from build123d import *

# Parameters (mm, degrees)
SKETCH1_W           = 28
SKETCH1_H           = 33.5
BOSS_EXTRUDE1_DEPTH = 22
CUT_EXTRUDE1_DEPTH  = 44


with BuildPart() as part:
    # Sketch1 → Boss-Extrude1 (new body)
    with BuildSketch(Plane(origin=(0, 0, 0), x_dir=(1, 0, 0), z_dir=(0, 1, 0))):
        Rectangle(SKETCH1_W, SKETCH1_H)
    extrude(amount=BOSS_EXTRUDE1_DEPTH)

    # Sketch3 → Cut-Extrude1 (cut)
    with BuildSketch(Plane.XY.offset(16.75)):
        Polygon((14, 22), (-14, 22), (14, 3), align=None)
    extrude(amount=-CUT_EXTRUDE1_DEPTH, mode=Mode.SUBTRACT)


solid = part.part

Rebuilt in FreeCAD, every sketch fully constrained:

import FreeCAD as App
import Part
import Sketcher

V = App.Vector
Q = App.Units.Quantity

doc = App.newDocument("Part")
body = doc.addObject("PartDesign::Body", "Body")

sketch1 = body.newObject("Sketcher::SketchObject", "Sketch")
sketch1.AttachmentSupport = (doc.getObject("XZ_Plane"), [""])
sketch1.MapMode = "FlatFace"
sketch1.addGeometry([
    Part.LineSegment(V(-14, -16.75, 0), V(-14, 16.75, 0)),
    Part.LineSegment(V(-14, 16.75, 0), V(14, 16.75, 0)),
    Part.LineSegment(V(14, 16.75, 0), V(14, -16.75, 0)),
    Part.LineSegment(V(14, -16.75, 0), V(-14, -16.75, 0)),
], False)
sketch1.addConstraint([
    Sketcher.Constraint("Coincident", 0, 2, 1, 1),
    Sketcher.Constraint("Coincident", 1, 2, 2, 1),
    Sketcher.Constraint("Coincident", 2, 2, 3, 1),
    Sketcher.Constraint("Coincident", 3, 2, 0, 1),
    Sketcher.Constraint("Vertical", 0),
    Sketcher.Constraint("Horizontal", 1),
    Sketcher.Constraint("Vertical", 2),
    Sketcher.Constraint("Horizontal", 3),
    Sketcher.Constraint("Symmetric", 0, 2, 2, 2, -1, 1),
    Sketcher.Constraint("DistanceX", 1, 1, 1, 2, Q("28 mm")),
    Sketcher.Constraint("DistanceY", 0, 1, 0, 2, Q("33.5 mm")),
])
pad1 = body.newObject("PartDesign::Pad", "Pad")
pad1.Profile = sketch1
pad1.Length = 22
pad1.Reversed = True

sketch2 = body.newObject("Sketcher::SketchObject", "Sketch001")
sketch2.AttachmentSupport = (doc.getObject("XY_Plane"), [""])
sketch2.MapMode = "FlatFace"
sketch2.AttachmentOffset = App.Placement(V(0, 0, 16.75), App.Rotation())
sketch2.addGeometry([
    Part.LineSegment(V(14, 22, 0), V(-14, 22, 0)),
    Part.LineSegment(V(-14, 22, 0), V(14, 3, 0)),
    Part.LineSegment(V(14, 3, 0), V(14, 22, 0)),
], False)
sketch2.addConstraint([
    Sketcher.Constraint("Coincident", 0, 2, 1, 1),
    Sketcher.Constraint("Coincident", 1, 2, 2, 1),
    Sketcher.Constraint("Coincident", 2, 2, 0, 1),
    Sketcher.Constraint("Horizontal", 0),
    Sketcher.Constraint("Vertical", 2),
    Sketcher.Constraint("DistanceX", 0, 2, 0, 1, Q("28 mm")),
    Sketcher.Constraint("DistanceY", 2, 1, 2, 2, Q("19 mm")),
    Sketcher.Constraint("DistanceX", 0, 2, -1, 1, Q("14 mm")),
    Sketcher.Constraint("DistanceY", -1, 1, 0, 2, Q("22 mm")),
])
pocket1 = body.newObject("PartDesign::Pocket", "Pocket")
pocket1.Profile = sketch2
pocket1.Length = 44

doc.recompute()
